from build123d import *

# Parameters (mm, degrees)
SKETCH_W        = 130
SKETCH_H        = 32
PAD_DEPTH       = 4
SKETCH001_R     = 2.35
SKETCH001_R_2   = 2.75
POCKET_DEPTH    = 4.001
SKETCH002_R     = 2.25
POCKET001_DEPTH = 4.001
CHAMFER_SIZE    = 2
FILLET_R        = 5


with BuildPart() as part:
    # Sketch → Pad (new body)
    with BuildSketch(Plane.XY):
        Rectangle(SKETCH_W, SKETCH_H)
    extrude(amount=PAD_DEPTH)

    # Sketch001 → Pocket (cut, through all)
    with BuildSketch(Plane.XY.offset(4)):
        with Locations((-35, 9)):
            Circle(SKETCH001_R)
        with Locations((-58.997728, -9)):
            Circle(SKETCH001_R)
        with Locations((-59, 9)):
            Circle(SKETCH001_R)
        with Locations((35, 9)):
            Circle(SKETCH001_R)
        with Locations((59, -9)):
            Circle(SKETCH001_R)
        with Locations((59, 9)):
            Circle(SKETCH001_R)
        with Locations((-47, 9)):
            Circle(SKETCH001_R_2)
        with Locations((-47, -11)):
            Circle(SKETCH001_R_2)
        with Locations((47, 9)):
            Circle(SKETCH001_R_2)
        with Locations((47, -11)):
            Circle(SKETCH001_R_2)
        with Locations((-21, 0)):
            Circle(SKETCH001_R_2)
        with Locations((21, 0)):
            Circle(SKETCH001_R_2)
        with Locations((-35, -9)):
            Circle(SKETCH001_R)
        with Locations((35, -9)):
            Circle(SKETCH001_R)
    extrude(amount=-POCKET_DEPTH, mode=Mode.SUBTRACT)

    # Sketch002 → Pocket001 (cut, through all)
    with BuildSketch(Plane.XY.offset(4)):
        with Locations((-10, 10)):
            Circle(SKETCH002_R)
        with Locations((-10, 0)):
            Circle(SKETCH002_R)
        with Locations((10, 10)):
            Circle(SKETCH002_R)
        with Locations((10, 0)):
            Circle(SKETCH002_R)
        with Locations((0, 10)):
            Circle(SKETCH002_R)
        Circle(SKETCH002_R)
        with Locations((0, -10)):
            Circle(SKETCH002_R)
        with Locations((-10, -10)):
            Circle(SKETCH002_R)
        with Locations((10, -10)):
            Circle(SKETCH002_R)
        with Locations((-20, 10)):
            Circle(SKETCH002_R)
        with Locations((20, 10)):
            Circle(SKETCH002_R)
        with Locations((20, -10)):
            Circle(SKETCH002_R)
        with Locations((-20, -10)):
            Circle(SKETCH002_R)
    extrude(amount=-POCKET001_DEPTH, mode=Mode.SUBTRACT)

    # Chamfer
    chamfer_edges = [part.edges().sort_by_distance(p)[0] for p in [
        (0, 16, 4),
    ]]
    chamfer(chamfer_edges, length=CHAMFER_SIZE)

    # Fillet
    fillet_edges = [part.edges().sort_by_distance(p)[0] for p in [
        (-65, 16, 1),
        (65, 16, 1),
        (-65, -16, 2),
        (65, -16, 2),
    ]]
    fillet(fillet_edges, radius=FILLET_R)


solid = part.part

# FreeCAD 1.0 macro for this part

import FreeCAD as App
import Part
import Sketcher
from FreeCAD import Vector
Q = App.Units.Quantity


def edges_at(feature, points):
    """Names of the edges that pass closest to the given points."""
    edges = feature.Shape.Edges
    near = lambda p: min(range(len(edges)), key=lambda i: edges[i].distToShape(Part.Vertex(*p))[0])
    return sorted({f"Edge{near(p) + 1}" for p in points})

doc = App.newDocument("Part")
body = doc.addObject("PartDesign::Body", "Body")

sketch1 = body.newObject("Sketcher::SketchObject", "Sketch")
sketch1.AttachmentSupport = (doc.getObject("XY_Plane"), [""])
sketch1.MapMode = "FlatFace"
sketch1.addGeometry([
    Part.LineSegment(Vector(-65, 16, 0), Vector(-65, -16, 0)),
    Part.LineSegment(Vector(-65, -16, 0), Vector(65, -16, 0)),
    Part.LineSegment(Vector(65, -16, 0), Vector(65, 16, 0)),
    Part.LineSegment(Vector(65, 16, 0), Vector(-65, 16, 0)),
], False)
sketch1.addConstraint([
    Sketcher.Constraint("Coincident", 0, 2, 1, 1),
    Sketcher.Constraint("Coincident", 1, 2, 2, 1),
    Sketcher.Constraint("Coincident", 2, 2, 3, 1),
    Sketcher.Constraint("Coincident", 3, 2, 0, 1),
    Sketcher.Constraint("Vertical", 0),
    Sketcher.Constraint("Horizontal", 1),
    Sketcher.Constraint("Vertical", 2),
    Sketcher.Constraint("Horizontal", 3),
    Sketcher.Constraint("Symmetric", 0, 2, 2, 2, -1, 1),
    Sketcher.Constraint("DistanceX", 1, 1, 1, 2, Q("130 mm")),
    Sketcher.Constraint("DistanceY", 0, 2, 0, 1, Q("32 mm")),
])
pad1 = body.newObject("PartDesign::Pad", "Pad")
pad1.Profile = sketch1
pad1.Length = 4

sketch2 = body.newObject("Sketcher::SketchObject", "Sketch001")
sketch2.AttachmentSupport = (doc.getObject("XY_Plane"), [""])
sketch2.MapMode = "FlatFace"
sketch2.AttachmentOffset = App.Placement(Vector(0, 0, 4), App.Rotation())
sketch2.addGeometry([
    Part.Circle(Vector(-35, 9, 0), Vector(0, 0, 1), 2.4),
    Part.Circle(Vector(-59, -9, 0), Vector(0, 0, 1), 2.4),
    Part.Circle(Vector(-59, 9, 0), Vector(0, 0, 1), 2.4),
    Part.Circle(Vector(35, 9, 0), Vector(0, 0, 1), 2.4),
    Part.Circle(Vector(59, -9, 0), Vector(0, 0, 1), 2.4),
    Part.Circle(Vector(59, 9, 0), Vector(0, 0, 1), 2.4),
    Part.Circle(Vector(-47, 9, 0), Vector(0, 0, 1), 2.8),
    Part.Circle(Vector(-47, -11, 0), Vector(0, 0, 1), 2.8),
    Part.Circle(Vector(47, 9, 0), Vector(0, 0, 1), 2.8),
    Part.Circle(Vector(47, -11, 0), Vector(0, 0, 1), 2.8),
    Part.Circle(Vector(-21, 0, 0), Vector(0, 0, 1), 2.8),
    Part.Circle(Vector(21, 0, 0), Vector(0, 0, 1), 2.8),
    Part.Circle(Vector(-35, -9, 0), Vector(0, 0, 1), 2.4),
    Part.Circle(Vector(35, -9, 0), Vector(0, 0, 1), 2.4),
], False)
sketch2.addConstraint([
    Sketcher.Constraint("Equal", 0, 1),
    Sketcher.Constraint("Equal", 1, 2),
    Sketcher.Constraint("Equal", 2, 3),
    Sketcher.Constraint("Equal", 3, 4),
    Sketcher.Constraint("Equal", 4, 5),
    Sketcher.Constraint("Equal", 6, 7),
    Sketcher.Constraint("Equal", 7, 8),
    Sketcher.Constraint("Equal", 8, 9),
    Sketcher.Constraint("Equal", 9, 10),
    Sketcher.Constraint("Equal", 10, 11),
    Sketcher.Constraint("Equal", 5, 12),
    Sketcher.Constraint("Equal", 12, 13),
    Sketcher.Constraint("Symmetric", 2, 3, 4, 3, -1, 1),
    Sketcher.Constraint("Symmetric", 10, 3, 11, 3, -1, 1),
    Sketcher.Constraint("Symmetric", 3, 3, 12, 3, -1, 1),
    Sketcher.Constraint("Symmetric", 0, 3, 13, 3, -1, 1),
    Sketcher.Constraint("Symmetric", 0, 3, 3, 3, -2),
    Sketcher.Constraint("Symmetric", 2, 3, 5, 3, -2),
    Sketcher.Constraint("Symmetric", 6, 3, 8, 3, -2),
    Sketcher.Constraint("Symmetric", 7, 3, 9, 3, -2),
    Sketcher.Constraint("PointOnObject", 10, 3, -1),
    Sketcher.Constraint("Horizontal", 0, 3, 2, 3),
    Sketcher.Constraint("Horizontal", 1, 3, 4, 3),
    Sketcher.Constraint("Horizontal", 5, 3, 6, 3),
    Sketcher.Constraint("Vertical", 6, 3, 7, 3),
    Sketcher.Constraint("Diameter", 0, Q("4.7 mm")),
    Sketcher.Constraint("Diameter", 6, Q("5.5 mm")),
    Sketcher.Constraint("DistanceX", 0, 3, -1, 1, Q("35 mm")),
    Sketcher.Constraint("DistanceY", -1, 1, 0, 3, Q("9 mm")),
    Sketcher.Constraint("DistanceX", 2, 3, -1, 1, Q("59 mm")),
    Sketcher.Constraint("DistanceX", 6, 3, -1, 1, Q("47 mm")),
    Sketcher.Constraint("DistanceY", 7, 3, -1, 1, Q("11 mm")),
    Sketcher.Constraint("DistanceX", 10, 3, -1, 1, Q("21 mm")),
    Sketcher.Constraint("DistanceX", 1, 3, -1, 1, Q("58.997728 mm")),
])
pocket1 = body.newObject("PartDesign::Pocket", "Pocket")
pocket1.Profile = sketch2
pocket1.Type = "ThroughAll"

sketch3 = body.newObject("Sketcher::SketchObject", "Sketch002")
sketch3.AttachmentSupport = (doc.getObject("XY_Plane"), [""])
sketch3.MapMode = "FlatFace"
sketch3.AttachmentOffset = App.Placement(Vector(0, 0, 4), App.Rotation())
sketch3.addGeometry([
    Part.Circle(Vector(-10, 10, 0), Vector(0, 0, 1), 2.2),
    Part.Circle(Vector(-10, 0, 0), Vector(0, 0, 1), 2.2),
    Part.Circle(Vector(10, 10, 0), Vector(0, 0, 1), 2.2),
    Part.Circle(Vector(10, 0, 0), Vector(0, 0, 1), 2.2),
    Part.Circle(Vector(0, 10, 0), Vector(0, 0, 1), 2.2),
    Part.Circle(Vector(0, 0, 0), Vector(0, 0, 1), 2.2),
    Part.Circle(Vector(0, -10, 0), Vector(0, 0, 1), 2.2),
    Part.Circle(Vector(-10, -10, 0), Vector(0, 0, 1), 2.2),
    Part.Circle(Vector(10, -10, 0), Vector(0, 0, 1), 2.2),
    Part.Circle(Vector(-20, 10, 0), Vector(0, 0, 1), 2.2),
    Part.Circle(Vector(20, 10, 0), Vector(0, 0, 1), 2.2),
    Part.Circle(Vector(20, -10, 0), Vector(0, 0, 1), 2.2),
    Part.Circle(Vector(-20, -10, 0), Vector(0, 0, 1), 2.2),
], False)
sketch3.addConstraint([
    Sketcher.Constraint("Coincident", 5, 3, -1, 1),
    Sketcher.Constraint("Equal", 0, 1),
    Sketcher.Constraint("Equal", 1, 2),
    Sketcher.Constraint("Equal", 2, 3),
    Sketcher.Constraint("Equal", 3, 4),
    Sketcher.Constraint("Equal", 4, 5),
    Sketcher.Constraint("Equal", 5, 6),
    Sketcher.Constraint("Equal", 6, 7),
    Sketcher.Constraint("Equal", 7, 8),
    Sketcher.Constraint("Equal", 8, 9),
    Sketcher.Constraint("Equal", 9, 10),
    Sketcher.Constraint("Equal", 10, 11),
    Sketcher.Constraint("Equal", 11, 12),
    Sketcher.Constraint("Symmetric", 1, 3, 3, 3, -1, 1),
    Sketcher.Constraint("Symmetric", 4, 3, 6, 3, -1, 1),
    Sketcher.Constraint("Symmetric", 2, 3, 7, 3, -1, 1),
    Sketcher.Constraint("Symmetric", 0, 3, 8, 3, -1, 1),
    Sketcher.Constraint("Symmetric", 9, 3, 11, 3, -1, 1),
    Sketcher.Constraint("Symmetric", 10, 3, 12, 3, -1, 1),
    Sketcher.Constraint("Symmetric", 0, 3, 2, 3, -2),
    Sketcher.Constraint("Symmetric", 9, 3, 10, 3, -2),
    Sketcher.Constraint("PointOnObject", 1, 3, -1),
    Sketcher.Constraint("PointOnObject", 4, 3, -2),
    Sketcher.Constraint("Horizontal", 2, 3, 4, 3),
    Sketcher.Constraint("Horizontal", 4, 3, 9, 3),
    Sketcher.Constraint("Vertical", 0, 3, 1, 3),
    Sketcher.Constraint("Diameter", 0, Q("4.5 mm")),
    Sketcher.Constraint("DistanceX", 0, 3, -1, 1, Q("10 mm")),
    Sketcher.Constraint("DistanceY", -1, 1, 0, 3, Q("10 mm")),
    Sketcher.Constraint("DistanceX", 9, 3, -1, 1, Q("20 mm")),
])
pocket2 = body.newObject("PartDesign::Pocket", "Pocket001")
pocket2.Profile = sketch3
pocket2.Type = "ThroughAll"
doc.recompute()

chamfer = body.newObject("PartDesign::Chamfer", "Chamfer")
chamfer.Base = (pocket2, edges_at(pocket2, [(0, 16, 4)]))
chamfer.Size = 2
doc.recompute()

fillet = body.newObject("PartDesign::Fillet", "Fillet")
fillet.Base = (chamfer, edges_at(chamfer, [
    (-65, 16, 1),
    (65, 16, 1),
    (-65, -16, 2),
    (65, -16, 2),
]))
fillet.Radius = 5

doc.recompute()
